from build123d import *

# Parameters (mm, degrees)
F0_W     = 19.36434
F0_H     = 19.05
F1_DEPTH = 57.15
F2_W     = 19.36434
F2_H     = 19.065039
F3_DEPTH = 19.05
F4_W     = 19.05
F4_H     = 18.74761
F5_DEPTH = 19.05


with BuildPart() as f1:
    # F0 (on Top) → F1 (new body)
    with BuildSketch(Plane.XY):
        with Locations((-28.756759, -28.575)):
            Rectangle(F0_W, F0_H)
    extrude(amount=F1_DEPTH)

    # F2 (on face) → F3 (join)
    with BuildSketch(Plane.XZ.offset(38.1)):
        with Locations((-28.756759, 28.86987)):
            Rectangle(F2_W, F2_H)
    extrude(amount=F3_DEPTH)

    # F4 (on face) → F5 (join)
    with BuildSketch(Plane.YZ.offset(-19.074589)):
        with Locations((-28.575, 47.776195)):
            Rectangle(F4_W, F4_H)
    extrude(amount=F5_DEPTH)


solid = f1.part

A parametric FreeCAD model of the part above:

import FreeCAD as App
import Part
import Sketcher
Q = App.Units.Quantity


def add_polygon(sketch, points):
    """Adds a closed chain of lines whose ends are joined by coincident constraints."""
    first, n = sketch.GeometryCount, len(points)
    for a, b in zip(points, points[1:] + points[:1]):
        sketch.addGeometry(Part.LineSegment(App.Vector(*a, 0), App.Vector(*b, 0)), False)
    for i in range(n):
        sketch.addConstraint(Sketcher.Constraint("Coincident", first + i, 2, first + (i + 1) % n, 1))

doc = App.newDocument("Part")
params = doc.addObject("Spreadsheet::Sheet", "Params")
for row, (alias, value) in enumerate([
    ("sketch1_height", "0.75 in"),
    ("pad1_length", "2.25 in"),
    ("pad2_length", "0.75 in"),
    ("sketch3_width", "0.75 in"),
    ("pad3_length", "0.75 in"),
], start=1):
    params.set(f"A{row}", alias)
    params.set(f"B{row}", "=" + value)
    params.setAlias(f"B{row}", alias)

body = doc.addObject("PartDesign::Body", "Body")

# Sketch on XY plane
sketch1 = doc.addObject("Sketcher::SketchObject", "Sketch")
body.addObject(sketch1)
sketch1.AttachmentSupport = (doc.XY_Plane, [""])
sketch1.MapMode = "FlatFace"
add_polygon(sketch1, [(-38, -19), (-38, -38), (-19, -38), (-19, -19)])  # lines 0-3
sketch1.addConstraint(Sketcher.Constraint("Vertical", 0))
sketch1.addConstraint(Sketcher.Constraint("Horizontal", 1))
sketch1.addConstraint(Sketcher.Constraint("Vertical", 2))
sketch1.addConstraint(Sketcher.Constraint("Horizontal", 3))
sketch1.addConstraint(Sketcher.Constraint("DistanceY", 0, 2, 0, 1, Q("0.75 in")))
sketch1.addConstraint(Sketcher.Constraint("DistanceY", 0, 2, -1, 1, Q("1.5 in")))
sketch1.addConstraint(Sketcher.Constraint("DistanceX", 1, 1, 1, 2, 19.36434))
sketch1.addConstraint(Sketcher.Constraint("DistanceX", 0, 2, -1, 1, 38.438929))
sketch1.setExpression("Constraints[8]", "Params.sketch1_height")
pad1 = doc.addObject("PartDesign::Pad", "Pad")
body.addObject(pad1)
pad1.Profile = sketch1
pad1.setExpression("Length", "Params.pad1_length")

# Sketch on XZ plane
sketch2 = doc.addObject("Sketcher::SketchObject", "Sketch001")
body.addObject(sketch2)
sketch2.AttachmentSupport = (doc.XZ_Plane, [""])
sketch2.MapMode = "FlatFace"
sketch2.AttachmentOffset = App.Placement(App.Vector(0, 0, 1.5 * 25.4), App.Rotation())
add_polygon(sketch2, [(-38, 38), (-38, 19), (-19, 19), (-19, 38)])  # lines 0-3
sketch2.addConstraint(Sketcher.Constraint("Vertical", 0))
sketch2.addConstraint(Sketcher.Constraint("Horizontal", 1))
sketch2.addConstraint(Sketcher.Constraint("Vertical", 2))
sketch2.addConstraint(Sketcher.Constraint("Horizontal", 3))
sketch2.addConstraint(Sketcher.Constraint("DistanceX", 1, 1, 1, 2, 19.36434))
sketch2.addConstraint(Sketcher.Constraint("DistanceY", 0, 2, 0, 1, 19.065039))
sketch2.addConstraint(Sketcher.Constraint("DistanceX", 0, 2, -1, 1, 38.438929))
sketch2.addConstraint(Sketcher.Constraint("DistanceY", -1, 1, 0, 2, 19.33735))
pad2 = doc.addObject("PartDesign::Pad", "Pad001")
body.addObject(pad2)
pad2.Profile = sketch2
pad2.setExpression("Length", "Params.pad2_length")

# Sketch on YZ plane
sketch3 = doc.addObject("Sketcher::SketchObject", "Sketch002")
body.addObject(sketch3)
sketch3.AttachmentSupport = (doc.YZ_Plane, [""])
sketch3.MapMode = "FlatFace"
sketch3.AttachmentOffset = App.Placement(App.Vector(0, 0, -19.074589), App.Rotation())
add_polygon(sketch3, [(-38, 57), (-38, 38), (-19, 38), (-19, 57)])  # lines 0-3
sketch3.addConstraint(Sketcher.Constraint("Vertical", 0))
sketch3.addConstraint(Sketcher.Constraint("Horizontal", 1))
sketch3.addConstraint(Sketcher.Constraint("Vertical", 2))
sketch3.addConstraint(Sketcher.Constraint("Horizontal", 3))
sketch3.addConstraint(Sketcher.Constraint("DistanceX", 1, 1, 1, 2, Q("0.75 in")))
sketch3.addConstraint(Sketcher.Constraint("DistanceX", 0, 2, -1, 1, Q("1.5 in")))
sketch3.addConstraint(Sketcher.Constraint("DistanceY", -1, 1, 2, 2, Q("2.25 in")))
sketch3.addConstraint(Sketcher.Constraint("DistanceY", 0, 2, 0, 1, 18.74761))
sketch3.setExpression("Constraints[8]", "Params.sketch3_width")
pad3 = doc.addObject("PartDesign::Pad", "Pad002")
body.addObject(pad3)
pad3.Profile = sketch3
pad3.setExpression("Length", "Params.pad3_length")

doc.recompute()
